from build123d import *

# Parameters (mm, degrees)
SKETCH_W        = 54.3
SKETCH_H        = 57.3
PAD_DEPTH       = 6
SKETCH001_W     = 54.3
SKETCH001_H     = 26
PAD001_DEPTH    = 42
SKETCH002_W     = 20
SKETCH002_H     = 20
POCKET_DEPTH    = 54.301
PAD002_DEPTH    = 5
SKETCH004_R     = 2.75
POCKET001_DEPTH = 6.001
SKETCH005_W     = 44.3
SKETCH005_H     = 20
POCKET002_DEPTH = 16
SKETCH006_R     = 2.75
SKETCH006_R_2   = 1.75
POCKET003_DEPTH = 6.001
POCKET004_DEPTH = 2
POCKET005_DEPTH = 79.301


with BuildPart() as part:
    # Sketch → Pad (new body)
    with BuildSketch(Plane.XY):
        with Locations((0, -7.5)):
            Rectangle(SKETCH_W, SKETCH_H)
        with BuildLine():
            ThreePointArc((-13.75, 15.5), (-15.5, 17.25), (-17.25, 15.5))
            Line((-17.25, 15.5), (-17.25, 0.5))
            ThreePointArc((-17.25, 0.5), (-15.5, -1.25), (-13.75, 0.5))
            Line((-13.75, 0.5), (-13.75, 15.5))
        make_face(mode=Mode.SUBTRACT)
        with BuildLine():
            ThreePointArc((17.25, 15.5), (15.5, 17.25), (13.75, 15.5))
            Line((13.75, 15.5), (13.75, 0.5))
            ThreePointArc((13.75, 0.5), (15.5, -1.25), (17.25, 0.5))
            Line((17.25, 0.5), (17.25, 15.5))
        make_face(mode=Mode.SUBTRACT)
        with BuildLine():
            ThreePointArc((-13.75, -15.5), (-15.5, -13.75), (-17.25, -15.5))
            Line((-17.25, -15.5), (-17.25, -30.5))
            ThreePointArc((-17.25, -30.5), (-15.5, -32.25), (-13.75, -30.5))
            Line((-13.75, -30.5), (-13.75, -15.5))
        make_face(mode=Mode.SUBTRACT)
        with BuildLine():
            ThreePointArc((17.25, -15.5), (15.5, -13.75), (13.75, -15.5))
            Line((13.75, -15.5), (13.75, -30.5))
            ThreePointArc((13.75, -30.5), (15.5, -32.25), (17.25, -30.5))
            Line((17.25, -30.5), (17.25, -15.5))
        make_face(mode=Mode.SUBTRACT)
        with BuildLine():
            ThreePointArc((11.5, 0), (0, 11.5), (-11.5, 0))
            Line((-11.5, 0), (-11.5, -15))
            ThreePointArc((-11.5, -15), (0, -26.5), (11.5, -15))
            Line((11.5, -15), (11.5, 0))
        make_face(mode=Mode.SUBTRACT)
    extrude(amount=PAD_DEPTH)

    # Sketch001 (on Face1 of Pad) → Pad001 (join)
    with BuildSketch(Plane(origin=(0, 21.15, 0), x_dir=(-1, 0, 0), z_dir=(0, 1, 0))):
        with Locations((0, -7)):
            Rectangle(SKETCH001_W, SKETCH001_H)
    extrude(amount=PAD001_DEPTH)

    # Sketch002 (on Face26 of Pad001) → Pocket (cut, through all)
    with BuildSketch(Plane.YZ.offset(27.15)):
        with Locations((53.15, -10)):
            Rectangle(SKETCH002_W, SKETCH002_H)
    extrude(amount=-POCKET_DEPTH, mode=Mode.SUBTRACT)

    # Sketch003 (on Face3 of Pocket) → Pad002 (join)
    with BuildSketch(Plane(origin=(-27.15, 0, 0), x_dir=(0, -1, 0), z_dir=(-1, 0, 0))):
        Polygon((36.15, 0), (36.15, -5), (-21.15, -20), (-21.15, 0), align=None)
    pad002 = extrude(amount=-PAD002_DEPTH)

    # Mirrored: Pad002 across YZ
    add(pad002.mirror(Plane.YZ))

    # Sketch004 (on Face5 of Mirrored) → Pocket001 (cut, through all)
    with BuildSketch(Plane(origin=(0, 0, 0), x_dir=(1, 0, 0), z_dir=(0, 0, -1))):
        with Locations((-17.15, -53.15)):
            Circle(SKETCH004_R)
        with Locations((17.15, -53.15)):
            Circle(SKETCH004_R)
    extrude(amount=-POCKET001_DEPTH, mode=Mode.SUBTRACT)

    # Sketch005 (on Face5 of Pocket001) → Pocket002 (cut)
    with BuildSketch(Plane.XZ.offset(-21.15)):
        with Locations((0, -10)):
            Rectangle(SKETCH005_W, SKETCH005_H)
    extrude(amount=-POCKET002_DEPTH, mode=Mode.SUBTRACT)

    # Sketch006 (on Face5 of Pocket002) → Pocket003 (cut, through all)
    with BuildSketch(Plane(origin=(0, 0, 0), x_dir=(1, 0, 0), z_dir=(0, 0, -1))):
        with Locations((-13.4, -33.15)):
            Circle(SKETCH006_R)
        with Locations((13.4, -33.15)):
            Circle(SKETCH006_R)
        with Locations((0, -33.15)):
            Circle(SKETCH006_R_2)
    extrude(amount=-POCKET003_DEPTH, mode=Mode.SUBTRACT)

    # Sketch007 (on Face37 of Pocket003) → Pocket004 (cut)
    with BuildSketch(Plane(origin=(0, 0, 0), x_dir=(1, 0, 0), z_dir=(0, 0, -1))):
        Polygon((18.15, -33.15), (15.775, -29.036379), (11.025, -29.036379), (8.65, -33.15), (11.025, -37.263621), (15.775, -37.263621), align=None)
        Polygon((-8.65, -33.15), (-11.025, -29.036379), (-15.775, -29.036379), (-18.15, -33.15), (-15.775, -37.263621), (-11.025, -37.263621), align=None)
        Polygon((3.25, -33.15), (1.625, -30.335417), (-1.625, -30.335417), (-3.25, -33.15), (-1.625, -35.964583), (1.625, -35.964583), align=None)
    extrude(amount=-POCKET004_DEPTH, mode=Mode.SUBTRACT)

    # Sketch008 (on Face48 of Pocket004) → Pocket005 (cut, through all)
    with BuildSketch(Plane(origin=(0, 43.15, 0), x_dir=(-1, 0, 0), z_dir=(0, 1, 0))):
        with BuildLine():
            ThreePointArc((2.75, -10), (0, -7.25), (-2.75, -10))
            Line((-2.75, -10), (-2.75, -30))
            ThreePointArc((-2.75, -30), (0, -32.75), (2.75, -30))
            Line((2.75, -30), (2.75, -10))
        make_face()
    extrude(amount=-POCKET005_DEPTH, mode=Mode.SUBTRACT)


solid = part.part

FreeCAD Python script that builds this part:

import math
import FreeCAD as App
import Part
import Sketcher

V = App.Vector
Q = App.Units.Quantity

doc = App.newDocument("Part")
body = doc.addObject("PartDesign::Body", "Body")

sketch1 = body.newObject("Sketcher::SketchObject", "Sketch")
sketch1.AttachmentSupport = (doc.getObject("XY_Plane"), [""])
sketch1.MapMode = "FlatFace"
sketch1.addGeometry([
    Part.LineSegment(V(-27.1, 21.1, 0), V(-27.1, -36.1, 0)),
    Part.LineSegment(V(-27.1, -36.1, 0), V(27.1, -36.1, 0)),
    Part.LineSegment(V(27.1, -36.1, 0), V(27.1, 21.1, 0)),
    Part.LineSegment(V(27.1, 21.1, 0), V(-27.1, 21.1, 0)),
    Part.ArcOfCircle(Part.Circle(V(-15.5, -15.5, 0), V(0, 0, 1), 1.8), math.radians(0), math.radians(180)),
    Part.LineSegment(V(-13.8, -15.5, 0), V(-13.8, -30.5, 0)),
    Part.ArcOfCircle(Part.Circle(V(-15.5, -30.5, 0), V(0, 0, 1), 1.8), math.radians(180), math.radians(360)),
    Part.LineSegment(V(-17.2, -30.5, 0), V(-17.2, -15.5, 0)),
    Part.ArcOfCircle(Part.Circle(V(15.5, -15.5, 0), V(0, 0, 1), 1.8), math.radians(0), math.radians(180)),
    Part.LineSegment(V(17.2, -15.5, 0), V(17.2, -30.5, 0)),
    Part.ArcOfCircle(Part.Circle(V(15.5, -30.5, 0), V(0, 0, 1), 1.8), math.radians(180), math.radians(360)),
    Part.LineSegment(V(13.8, -30.5, 0), V(13.8, -15.5, 0)),
    Part.ArcOfCircle(Part.Circle(V(-15.5, 15.5, 0), V(0, 0, 1), 1.8), math.radians(0), math.radians(180)),
    Part.LineSegment(V(-13.8, 15.5, 0), V(-13.8, 0.5, 0)),
    Part.ArcOfCircle(Part.Circle(V(-15.5, 0.5, 0), V(0, 0, 1), 1.8), math.radians(180), math.radians(360)),
    Part.LineSegment(V(-17.2, 0.5, 0), V(-17.2, 15.5, 0)),
    Part.ArcOfCircle(Part.Circle(V(0, 0, 0), V(0, 0, 1), 11.5), math.radians(0), math.radians(180)),
    Part.LineSegment(V(11.5, 0, 0), V(11.5, -15, 0)),
    Part.ArcOfCircle(Part.Circle(V(0, -15, 0), V(0, 0, 1), 11.5), math.radians(180), math.radians(360)),
    Part.LineSegment(V(-11.5, -15, 0), V(-11.5, 0, 0)),
    Part.ArcOfCircle(Part.Circle(V(15.5, 15.5, 0), V(0, 0, 1), 1.8), math.radians(0), math.radians(180)),
    Part.LineSegment(V(17.2, 15.5, 0), V(17.2, 0.5, 0)),
    Part.ArcOfCircle(Part.Circle(V(15.5, 0.5, 0), V(0, 0, 1), 1.8), math.radians(180), math.radians(360)),
    Part.LineSegment(V(13.8, 0.5, 0), V(13.8, 15.5, 0)),
], False)
sketch1.addConstraint([
    Sketcher.Constraint("Coincident", 0, 2, 1, 1),
    Sketcher.Constraint("Coincident", 1, 2, 2, 1),
    Sketcher.Constraint("Coincident", 2, 2, 3, 1),
    Sketcher.Constraint("Coincident", 3, 2, 0, 1),
    Sketcher.Constraint("Tangent", 4, 1, 5, 1),
    Sketcher.Constraint("Tangent", 5, 2, 6, 2),
    Sketcher.Constraint("Tangent", 6, 1, 7, 1),
    Sketcher.Constraint("Tangent", 7, 2, 4, 2),
    Sketcher.Constraint("Tangent", 8, 1, 9, 1),
    Sketcher.Constraint("Tangent", 9, 2, 10, 2),
    Sketcher.Constraint("Tangent", 10, 1, 11, 1),
    Sketcher.Constraint("Tangent", 11, 2, 8, 2),
    Sketcher.Constraint("Tangent", 12, 1, 13, 1),
    Sketcher.Constraint("Tangent", 13, 2, 14, 2),
    Sketcher.Constraint("Tangent", 14, 1, 15, 1),
    Sketcher.Constraint("Tangent", 15, 2, 12, 2),
    Sketcher.Constraint("Tangent", 16, 1, 17, 1),
    Sketcher.Constraint("Tangent", 17, 2, 18, 2),
    Sketcher.Constraint("Tangent", 18, 1, 19, 1),
    Sketcher.Constraint("Tangent", 19, 2, 16, 2),
    Sketcher.Constraint("Tangent", 20, 1, 21, 1),
    Sketcher.Constraint("Tangent", 21, 2, 22, 2),
    Sketcher.Constraint("Tangent", 22, 1, 23, 1),
    Sketcher.Constraint("Tangent", 23, 2, 20, 2),
    Sketcher.Constraint("Vertical", 0),
    Sketcher.Constraint("Horizontal", 1),
    Sketcher.Constraint("Vertical", 2),
    Sketcher.Constraint("Horizontal", 3),
    Sketcher.Constraint("Vertical", 5),
    Sketcher.Constraint("Vertical", 7),
    Sketcher.Constraint("Vertical", 9),
    Sketcher.Constraint("Vertical", 11),
    Sketcher.Constraint("Vertical", 13),
    Sketcher.Constraint("Vertical", 15),
    Sketcher.Constraint("Vertical", 17),
    Sketcher.Constraint("Vertical", 19),
    Sketcher.Constraint("Vertical", 21),
    Sketcher.Constraint("Vertical", 23),
    Sketcher.Constraint("Coincident", 16, 3, -1, 1),
    Sketcher.Constraint("Equal", 6, 8),
    Sketcher.Constraint("Equal", 10, 12),
    Sketcher.Constraint("Equal", 14, 20),
    Sketcher.Constraint("Symmetric", 8, 3, 12, 3, -1, 1),
    Sketcher.Constraint("Symmetric", 4, 3, 20, 3, -1, 1),
    Sketcher.Constraint("Symmetric", 4, 3, 8, 3, -2),
    Sketcher.Constraint("Horizontal", 6, 3, 10, 3),
    Sketcher.Constraint("Horizontal", 14, 3, 22, 3),
    Sketcher.Constraint("Equal", 11, 13),
    Sketcher.Constraint("Equal", 15, 17),
    Sketcher.Constraint("Radius", 16, 11.5),
    Sketcher.Constraint("DistanceY", 5, 2, 5, 1, 15.0),
    Sketcher.Constraint("Radius", 4, 1.75),
    Sketcher.Constraint("DistanceX", 1, 1, 1, 2, 54.3),
    Sketcher.Constraint("DistanceY", 0, 2, 0, 1, 57.3),
    Sketcher.Constraint("DistanceX", 4, 3, 8, 3, 31.0),
    Sketcher.Constraint("DistanceY", 4, 3, 12, 3, 31.0),
    Sketcher.Constraint("DistanceX", 0, 2, 5, 2, 13.4),
    Sketcher.Constraint("DistanceY", 0, 2, -1, 1, 36.15),
])
pad1 = body.newObject("PartDesign::Pad", "Pad")
pad1.Profile = sketch1
pad1.Length = 6

sketch2 = body.newObject("Sketcher::SketchObject", "Sketch001")
sketch2.AttachmentSupport = (doc.getObject("XZ_Plane"), [""])
sketch2.MapMode = "FlatFace"
sketch2.AttachmentOffset = App.Placement(V(0, 0, -21.15), App.Rotation())
sketch2.addGeometry([
    Part.LineSegment(V(27, 6, 0), V(27, -20, 0)),
    Part.LineSegment(V(27, -20, 0), V(-27, -20, 0)),
    Part.LineSegment(V(-27, -20, 0), V(-27, 6, 0)),
    Part.LineSegment(V(-27, 6, 0), V(27, 6, 0)),
], False)
sketch2.addConstraint([
    Sketcher.Constraint("Coincident", 0, 2, 1, 1),
    Sketcher.Constraint("Coincident", 1, 2, 2, 1),
    Sketcher.Constraint("Coincident", 2, 2, 3, 1),
    Sketcher.Constraint("Coincident", 3, 2, 0, 1),
    Sketcher.Constraint("Vertical", 0),
    Sketcher.Constraint("Horizontal", 1),
    Sketcher.Constraint("Vertical", 2),
    Sketcher.Constraint("Horizontal", 3),
    Sketcher.Constraint("DistanceY", 0, 2, 0, 1, 26.0),
    Sketcher.Constraint("DistanceX", 1, 2, 1, 1, 54.3),
    Sketcher.Constraint("DistanceY", 0, 2, -1, 1, 20.0),
    Sketcher.Constraint("DistanceX", -1, 1, 0, 2, 27.15),
])
pad2 = body.newObject("PartDesign::Pad", "Pad001")
pad2.Profile = sketch2
pad2.Length = 42
pad2.Reversed = True

sketch3 = body.newObject("Sketcher::SketchObject", "Sketch002")
sketch3.AttachmentSupport = (doc.getObject("YZ_Plane"), [""])
sketch3.MapMode = "FlatFace"
sketch3.AttachmentOffset = App.Placement(V(0, 0, 27.15), App.Rotation())
sketch3.addGeometry([
    Part.LineSegment(V(43, 0, 0), V(43, -20, 0)),
    Part.LineSegment(V(43, -20, 0), V(63, -20, 0)),
    Part.LineSegment(V(63, -20, 0), V(63, 0, 0)),
    Part.LineSegment(V(63, 0, 0), V(43, 0, 0)),
], False)
sketch3.addConstraint([
    Sketcher.Constraint("Coincident", 0, 2, 1, 1),
    Sketcher.Constraint("Coincident", 1, 2, 2, 1),
    Sketcher.Constraint("Coincident", 2, 2, 3, 1),
    Sketcher.Constraint("Coincident", 3, 2, 0, 1),
    Sketcher.Constraint("Vertical", 0),
    Sketcher.Constraint("Horizontal", 1),
    Sketcher.Constraint("Vertical", 2),
    Sketcher.Constraint("Horizontal", 3),
    Sketcher.Constraint("PointOnObject", 2, 2, -1),
    Sketcher.Constraint("Equal", 3, 0),
    Sketcher.Constraint("DistanceX", 1, 1, 1, 2, 20.0),
    Sketcher.Constraint("DistanceX", -1, 1, 0, 2, 43.15),
])
pocket1 = body.newObject("PartDesign::Pocket", "Pocket")
pocket1.Profile = sketch3
pocket1.Type = "ThroughAll"

sketch4 = body.newObject("Sketcher::SketchObject", "Sketch003")
sketch4.AttachmentSupport = (doc.getObject("YZ_Plane"), [""])
sketch4.MapMode = "FlatFace"
sketch4.AttachmentOffset = App.Placement(V(0, 0, -27.15), App.Rotation())
sketch4.addGeometry([
    Part.LineSegment(V(-36, -5, 0), V(-36, 0, 0)),
    Part.LineSegment(V(-36, 0, 0), V(21, 0, 0)),
    Part.LineSegment(V(21, 0, 0), V(21, -20, 0)),
    Part.LineSegment(V(21, -20, 0), V(-36, -5, 0)),
], False)
sketch4.addConstraint([
    Sketcher.Constraint("Coincident", 0, 2, 1, 1),
    Sketcher.Constraint("Coincident", 1, 2, 2, 1),
    Sketcher.Constraint("Coincident", 2, 2, 3, 1),
    Sketcher.Constraint("Coincident", 3, 2, 0, 1),
    Sketcher.Constraint("Vertical", 0),
    Sketcher.Constraint("Horizontal", 1),
    Sketcher.Constraint("Vertical", 2),
    Sketcher.Constraint("PointOnObject", 0, 2, -1),
    Sketcher.Constraint("DistanceY", 0, 1, 0, 2, 5.0),
    Sketcher.Constraint("DistanceY", 2, 2, 2, 1, 20.0),
    Sketcher.Constraint("DistanceX", 1, 1, 1, 2, 57.3),
    Sketcher.Constraint("DistanceX", 0, 2, -1, 1, 36.15),
])
pad3 = body.newObject("PartDesign::Pad", "Pad002")
pad3.Profile = sketch4
pad3.Length = 5
doc.recompute()

mirrored = body.newObject("PartDesign::Mirrored", "Mirrored")
mirrored.Originals = [pad3]
mirrored.MirrorPlane = (doc.getObject("YZ_Plane"), [""])
body.Tip = mirrored

sketch5 = body.newObject("Sketcher::SketchObject", "Sketch004")
sketch5.AttachmentSupport = (doc.getObject("XY_Plane"), [""])
sketch5.MapMode = "FlatFace"
sketch5.addGeometry([
    Part.Circle(V(-17.1, 53.1, 0), V(0, 0, 1), 2.8),
    Part.Circle(V(17.1, 53.1, 0), V(0, 0, 1), 2.8),
], False)
sketch5.addConstraint([
    Sketcher.Constraint("Equal", 0, 1),
    Sketcher.Constraint("Symmetric", 0, 3, 1, 3, -2),
    Sketcher.Constraint("Diameter", 0, 5.5),
    Sketcher.Constraint("DistanceX", 0, 3, 1, 3, 34.3),
    Sketcher.Constraint("DistanceY", -1, 1, 0, 3, 53.15),
])
pocket2 = body.newObject("PartDesign::Pocket", "Pocket001")
pocket2.Profile = sketch5
pocket2.Type = "ThroughAll"
pocket2.Reversed = True

sketch6 = body.newObject("Sketcher::SketchObject", "Sketch005")
sketch6.AttachmentSupport = (doc.getObject("XZ_Plane"), [""])
sketch6.MapMode = "FlatFace"
sketch6.AttachmentOffset = App.Placement(V(0, 0, -21.15), App.Rotation())
sketch6.addGeometry([
    Part.LineSegment(V(-22, 0, 0), V(-22, -20, 0)),
    Part.LineSegment(V(-22, -20, 0), V(22, -20, 0)),
    Part.LineSegment(V(22, -20, 0), V(22, 0, 0)),
    Part.LineSegment(V(22, 0, 0), V(-22, 0, 0)),
], False)
sketch6.addConstraint([
    Sketcher.Constraint("Coincident", 0, 2, 1, 1),
    Sketcher.Constraint("Coincident", 1, 2, 2, 1),
    Sketcher.Constraint("Coincident", 2, 2, 3, 1),
    Sketcher.Constraint("Coincident", 3, 2, 0, 1),
    Sketcher.Constraint("Vertical", 0),
    Sketcher.Constraint("Horizontal", 1),
    Sketcher.Constraint("Vertical", 2),
    Sketcher.Constraint("Horizontal", 3),
    Sketcher.Constraint("Symmetric", 2, 2, 3, 2, -1, 1),
    Sketcher.Constraint("DistanceY", 0, 2, 0, 1, 20.0),
    Sketcher.Constraint("DistanceX", 1, 1, 1, 2, 44.3),
])
pocket3 = body.newObject("PartDesign::Pocket", "Pocket002")
pocket3.Profile = sketch6
pocket3.Length = 16

sketch7 = body.newObject("Sketcher::SketchObject", "Sketch006")
sketch7.AttachmentSupport = (doc.getObject("XY_Plane"), [""])
sketch7.MapMode = "FlatFace"
sketch7.addGeometry([
    Part.Circle(V(-13.4, 33.1, 0), V(0, 0, 1), 2.8),
    Part.Circle(V(13.4, 33.1, 0), V(0, 0, 1), 2.8),
    Part.Circle(V(0, 33.1, 0), V(0, 0, 1), 1.8),
], False)
sketch7.addConstraint([
    Sketcher.Constraint("Equal", 0, 1),
    Sketcher.Constraint("Symmetric", 0, 3, 1, 3, -2),
    Sketcher.Constraint("PointOnObject", 2, 3, -2),
    Sketcher.Constraint("Horizontal", 1, 3, 2, 3),
    Sketcher.Constraint("Diameter", 0, 5.5),
    Sketcher.Constraint("Diameter", 2, 3.5),
    Sketcher.Constraint("DistanceX", 0, 3, -1, 1, 13.4),
    Sketcher.Constraint("DistanceY", -1, 1, 0, 3, 33.15),
])
pocket4 = body.newObject("PartDesign::Pocket", "Pocket003")
pocket4.Profile = sketch7
pocket4.Type = "ThroughAll"
pocket4.Reversed = True

sketch8 = body.newObject("Sketcher::SketchObject", "Sketch007")
sketch8.AttachmentSupport = (doc.getObject("XY_Plane"), [""])
sketch8.MapMode = "FlatFace"
sketch8.addGeometry([
    Part.LineSegment(V(18.1, 33.1, 0), V(15.8, 29, 0)),
    Part.LineSegment(V(15.8, 29, 0), V(11, 29, 0)),
    Part.LineSegment(V(11, 29, 0), V(8.7, 33.1, 0)),
    Part.LineSegment(V(8.7, 33.1, 0), V(11, 37.3, 0)),
    Part.LineSegment(V(11, 37.3, 0), V(15.8, 37.3, 0)),
    Part.LineSegment(V(15.8, 37.3, 0), V(18.1, 33.1, 0)),
    Part.LineSegment(V(-8.7, 33.1, 0), V(-11, 29, 0)),
    Part.LineSegment(V(-11, 29, 0), V(-15.8, 29, 0)),
    Part.LineSegment(V(-15.8, 29, 0), V(-18.1, 33.1, 0)),
    Part.LineSegment(V(-18.1, 33.1, 0), V(-15.8, 37.3, 0)),
    Part.LineSegment(V(-15.8, 37.3, 0), V(-11, 37.3, 0)),
    Part.LineSegment(V(-11, 37.3, 0), V(-8.7, 33.1, 0)),
    Part.LineSegment(V(3.2, 33.1, 0), V(1.6, 30.3, 0)),
    Part.LineSegment(V(1.6, 30.3, 0), V(-1.6, 30.3, 0)),
    Part.LineSegment(V(-1.6, 30.3, 0), V(-3.2, 33.1, 0)),
    Part.LineSegment(V(-3.2, 33.1, 0), V(-1.6, 36, 0)),
    Part.LineSegment(V(-1.6, 36, 0), V(1.6, 36, 0)),
    Part.LineSegment(V(1.6, 36, 0), V(3.2, 33.1, 0)),
], False)
sketch8.addConstraint([
    Sketcher.Constraint("Coincident", 0, 2, 1, 1),
    Sketcher.Constraint("Coincident", 1, 2, 2, 1),
    Sketcher.Constraint("Coincident", 2, 2, 3, 1),
    Sketcher.Constraint("Coincident", 3, 2, 4, 1),
    Sketcher.Constraint("Coincident", 4, 2, 5, 1),
    Sketcher.Constraint("Coincident", 5, 2, 0, 1),
    Sketcher.Constraint("Coincident", 6, 2, 7, 1),
    Sketcher.Constraint("Coincident", 7, 2, 8, 1),
    Sketcher.Constraint("Coincident", 8, 2, 9, 1),
    Sketcher.Constraint("Coincident", 9, 2, 10, 1),
    Sketcher.Constraint("Coincident", 10, 2, 11, 1),
    Sketcher.Constraint("Coincident", 11, 2, 6, 1),
    Sketcher.Constraint("Coincident", 12, 2, 13, 1),
    Sketcher.Constraint("Coincident", 13, 2, 14, 1),
    Sketcher.Constraint("Coincident", 14, 2, 15, 1),
    Sketcher.Constraint("Coincident", 15, 2, 16, 1),
    Sketcher.Constraint("Coincident", 16, 2, 17, 1),
    Sketcher.Constraint("Coincident", 17, 2, 12, 1),
    Sketcher.Constraint("Horizontal", 1),
    Sketcher.Constraint("Horizontal", 4),
    Sketcher.Constraint("Horizontal", 7),
    Sketcher.Constraint("Horizontal", 10),
    Sketcher.Constraint("Horizontal", 13),
    Sketcher.Constraint("Horizontal", 16),
    Sketcher.Constraint("Symmetric", 1, 2, 6, 2, -2),
    Sketcher.Constraint("Symmetric", 5, 2, 8, 2, -2),
    Sketcher.Constraint("Symmetric", 4, 2, 9, 2, -2),
    Sketcher.Constraint("Symmetric", 2, 2, 11, 2, -2),
    Sketcher.Constraint("Symmetric", 14, 2, 17, 2, -2),
    Sketcher.Constraint("Parallel", 0, 3),
    Sketcher.Constraint("Parallel", 2, 5),
    Sketcher.Constraint("Parallel", 3, 6),
    Sketcher.Constraint("Parallel", 5, 8),
    Sketcher.Constraint("Parallel", 8, 11),
    Sketcher.Constraint("Parallel", 9, 12),
    Sketcher.Constraint("Parallel", 11, 14),
    Sketcher.Constraint("Parallel", 12, 15),
    Sketcher.Constraint("Parallel", 14, 17),
    Sketcher.Constraint("Horizontal", 2, 2, 5, 2),
    Sketcher.Constraint("Horizontal", 11, 2, 14, 2),
    Sketcher.Constraint("Vertical", 1, 2, 3, 2),
    Sketcher.Constraint("Vertical", 13, 2, 15, 2),
    Sketcher.Constraint("Angle", 0, Q("-119.999998 deg")),
    Sketcher.Constraint("DistanceX", 1, 2, 1, 1, 4.75),
    Sketcher.Constraint("DistanceX", 13, 2, 13, 1, 3.25),
    Sketcher.Constraint("DistanceX", 2, 2, 5, 2, 9.5),
    Sketcher.Constraint("DistanceX", 6, 2, 0, 2, 26.8),
    Sketcher.Constraint("DistanceX", 11, 2, 14, 2, 5.4),
    Sketcher.Constraint("DistanceY", -1, 1, 2, 2, 33.15),
])
pocket5 = body.newObject("PartDesign::Pocket", "Pocket004")
pocket5.Profile = sketch8
pocket5.Length = 2
pocket5.Reversed = True

sketch9 = body.newObject("Sketcher::SketchObject", "Sketch008")
sketch9.AttachmentSupport = (doc.getObject("XZ_Plane"), [""])
sketch9.MapMode = "FlatFace"
sketch9.AttachmentOffset = App.Placement(V(0, 0, -43.15), App.Rotation())
sketch9.addGeometry([
    Part.ArcOfCircle(Part.Circle(V(0, -10, 0), V(0, 0, 1), 2.8), math.radians(0), math.radians(180)),
    Part.LineSegment(V(2.8, -10, 0), V(2.8, -30, 0)),
    Part.ArcOfCircle(Part.Circle(V(0, -30, 0), V(0, 0, 1), 2.8), math.radians(180), math.radians(360)),
    Part.LineSegment(V(-2.8, -30, 0), V(-2.8, -10, 0)),
], False)
sketch9.addConstraint([
    Sketcher.Constraint("Tangent", 0, 1, 1, 1),
    Sketcher.Constraint("Tangent", 1, 2, 2, 2),
    Sketcher.Constraint("Tangent", 2, 1, 3, 1),
    Sketcher.Constraint("Tangent", 3, 2, 0, 2),
    Sketcher.Constraint("Vertical", 1),
    Sketcher.Constraint("Vertical", 3),
    Sketcher.Constraint("PointOnObject", 0, 3, -2),
    Sketcher.Constraint("DistanceY", 1, 2, 1, 1, 20.0),
    Sketcher.Constraint("Radius", 0, 2.75),
    Sketcher.Constraint("DistanceY", 0, 3, -1, 1, 10.0),
])
pocket6 = body.newObject("PartDesign::Pocket", "Pocket005")
pocket6.Profile = sketch9
pocket6.Type = "ThroughAll"
pocket6.Reversed = True

doc.recompute()
